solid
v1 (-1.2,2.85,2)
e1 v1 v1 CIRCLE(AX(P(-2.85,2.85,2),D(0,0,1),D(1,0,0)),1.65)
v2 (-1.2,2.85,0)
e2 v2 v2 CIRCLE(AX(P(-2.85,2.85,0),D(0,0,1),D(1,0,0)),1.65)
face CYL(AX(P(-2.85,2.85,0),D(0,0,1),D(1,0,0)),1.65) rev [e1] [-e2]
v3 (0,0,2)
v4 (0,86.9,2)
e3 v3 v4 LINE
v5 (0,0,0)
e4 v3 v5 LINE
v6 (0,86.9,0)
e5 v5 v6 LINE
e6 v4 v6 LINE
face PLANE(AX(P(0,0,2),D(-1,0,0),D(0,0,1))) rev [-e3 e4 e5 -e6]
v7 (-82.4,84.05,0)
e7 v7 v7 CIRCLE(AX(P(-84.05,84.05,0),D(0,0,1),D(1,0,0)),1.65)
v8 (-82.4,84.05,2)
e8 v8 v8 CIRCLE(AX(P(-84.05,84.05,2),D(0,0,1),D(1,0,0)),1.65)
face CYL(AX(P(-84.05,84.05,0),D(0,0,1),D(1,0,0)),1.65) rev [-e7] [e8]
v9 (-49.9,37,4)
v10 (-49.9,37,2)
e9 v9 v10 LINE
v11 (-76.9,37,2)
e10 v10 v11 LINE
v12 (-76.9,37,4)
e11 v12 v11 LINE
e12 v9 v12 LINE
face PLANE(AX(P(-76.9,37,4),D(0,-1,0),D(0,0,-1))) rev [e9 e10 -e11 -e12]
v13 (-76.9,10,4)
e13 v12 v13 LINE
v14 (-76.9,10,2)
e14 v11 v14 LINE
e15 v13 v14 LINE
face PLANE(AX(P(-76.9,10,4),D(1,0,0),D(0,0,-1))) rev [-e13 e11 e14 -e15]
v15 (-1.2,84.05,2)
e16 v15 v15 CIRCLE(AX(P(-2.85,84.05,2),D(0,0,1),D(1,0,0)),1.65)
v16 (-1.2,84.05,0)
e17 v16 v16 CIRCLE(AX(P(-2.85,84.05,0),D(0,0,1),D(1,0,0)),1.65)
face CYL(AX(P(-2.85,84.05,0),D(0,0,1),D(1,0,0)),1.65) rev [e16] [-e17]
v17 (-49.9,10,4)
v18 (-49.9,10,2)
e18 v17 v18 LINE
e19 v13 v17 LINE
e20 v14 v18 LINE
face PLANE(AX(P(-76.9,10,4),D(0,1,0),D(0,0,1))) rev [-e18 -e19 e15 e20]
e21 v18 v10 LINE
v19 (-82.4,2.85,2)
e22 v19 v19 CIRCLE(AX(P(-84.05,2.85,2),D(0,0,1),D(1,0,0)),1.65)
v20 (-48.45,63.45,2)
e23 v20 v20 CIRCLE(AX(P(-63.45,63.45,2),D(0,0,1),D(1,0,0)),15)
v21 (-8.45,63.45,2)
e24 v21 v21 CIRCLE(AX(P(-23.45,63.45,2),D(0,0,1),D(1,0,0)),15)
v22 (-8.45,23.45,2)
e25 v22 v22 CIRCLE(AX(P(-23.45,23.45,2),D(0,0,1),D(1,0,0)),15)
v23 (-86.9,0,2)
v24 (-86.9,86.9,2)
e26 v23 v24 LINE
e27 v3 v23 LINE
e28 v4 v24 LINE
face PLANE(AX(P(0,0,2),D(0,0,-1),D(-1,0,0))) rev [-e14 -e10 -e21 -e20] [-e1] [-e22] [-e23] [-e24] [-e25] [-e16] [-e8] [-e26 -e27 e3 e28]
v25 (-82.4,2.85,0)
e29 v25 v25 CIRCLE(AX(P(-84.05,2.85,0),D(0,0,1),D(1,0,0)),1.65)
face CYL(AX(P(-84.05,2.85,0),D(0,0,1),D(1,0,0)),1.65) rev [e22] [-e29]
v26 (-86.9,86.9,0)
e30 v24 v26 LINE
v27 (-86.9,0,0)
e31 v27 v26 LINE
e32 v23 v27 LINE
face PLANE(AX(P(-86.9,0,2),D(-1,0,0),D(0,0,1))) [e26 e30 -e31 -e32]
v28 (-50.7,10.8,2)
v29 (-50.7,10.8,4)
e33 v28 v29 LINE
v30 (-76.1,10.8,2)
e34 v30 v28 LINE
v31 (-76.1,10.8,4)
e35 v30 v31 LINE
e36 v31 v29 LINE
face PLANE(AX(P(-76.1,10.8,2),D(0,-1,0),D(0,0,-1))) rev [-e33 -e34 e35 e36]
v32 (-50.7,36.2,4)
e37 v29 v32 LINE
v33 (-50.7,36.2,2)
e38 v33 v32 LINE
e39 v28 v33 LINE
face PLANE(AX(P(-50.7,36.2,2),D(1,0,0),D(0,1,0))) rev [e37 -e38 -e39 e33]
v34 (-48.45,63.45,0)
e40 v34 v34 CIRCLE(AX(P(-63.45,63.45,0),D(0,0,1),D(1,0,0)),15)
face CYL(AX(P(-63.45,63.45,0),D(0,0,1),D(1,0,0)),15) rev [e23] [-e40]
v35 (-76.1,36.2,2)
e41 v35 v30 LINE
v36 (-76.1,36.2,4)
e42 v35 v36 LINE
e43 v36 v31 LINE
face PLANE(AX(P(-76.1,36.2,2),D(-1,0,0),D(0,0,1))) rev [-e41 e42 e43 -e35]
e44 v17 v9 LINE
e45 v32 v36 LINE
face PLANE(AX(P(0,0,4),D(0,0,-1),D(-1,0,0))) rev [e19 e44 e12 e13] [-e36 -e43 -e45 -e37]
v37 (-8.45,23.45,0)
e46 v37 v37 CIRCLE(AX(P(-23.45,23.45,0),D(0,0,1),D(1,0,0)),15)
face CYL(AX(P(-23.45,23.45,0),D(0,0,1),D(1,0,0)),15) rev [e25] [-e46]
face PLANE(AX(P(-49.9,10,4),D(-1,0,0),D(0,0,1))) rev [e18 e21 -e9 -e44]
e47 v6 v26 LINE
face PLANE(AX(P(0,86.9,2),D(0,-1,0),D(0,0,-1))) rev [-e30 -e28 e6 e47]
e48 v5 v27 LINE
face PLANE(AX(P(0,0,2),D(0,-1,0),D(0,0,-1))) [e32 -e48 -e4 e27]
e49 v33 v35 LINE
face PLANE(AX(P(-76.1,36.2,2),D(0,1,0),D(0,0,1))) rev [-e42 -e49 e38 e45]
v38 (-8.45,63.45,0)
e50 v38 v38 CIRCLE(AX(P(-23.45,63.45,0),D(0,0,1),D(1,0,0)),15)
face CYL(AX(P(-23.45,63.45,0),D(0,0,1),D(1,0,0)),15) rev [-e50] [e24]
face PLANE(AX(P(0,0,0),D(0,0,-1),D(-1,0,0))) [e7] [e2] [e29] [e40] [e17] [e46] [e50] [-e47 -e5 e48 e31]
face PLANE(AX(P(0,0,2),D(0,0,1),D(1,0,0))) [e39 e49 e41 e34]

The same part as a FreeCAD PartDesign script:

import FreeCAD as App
import Part
import Sketcher
Q = App.Units.Quantity

doc = App.newDocument("Part")
body = doc.addObject("PartDesign::Body", "Body")

# Sketch on XY plane
sketch1 = doc.addObject("Sketcher::SketchObject", "Sketch")
body.addObject(sketch1)
sketch1.AttachmentSupport = (doc.XY_Plane, [""])
sketch1.MapMode = "FlatFace"
sketch1.addGeometry([
    Part.LineSegment(App.Vector(-87, 0, 0), App.Vector(0, 0, 0)),
    Part.LineSegment(App.Vector(0, 0, 0), App.Vector(0, 87, 0)),
    Part.LineSegment(App.Vector(0, 87, 0), App.Vector(-87, 87, 0)),
    Part.LineSegment(App.Vector(-87, 87, 0), App.Vector(-87, 0, 0)),
], False)
sketch1.addConstraint([
    Sketcher.Constraint("Coincident", 0, 2, 1, 1),
    Sketcher.Constraint("Coincident", 1, 2, 2, 1),
    Sketcher.Constraint("Coincident", 2, 2, 3, 1),
    Sketcher.Constraint("Coincident", 3, 2, 0, 1),
    Sketcher.Constraint("Horizontal", 0),
    Sketcher.Constraint("Vertical", 1),
    Sketcher.Constraint("Horizontal", 2),
    Sketcher.Constraint("Vertical", 3),
    Sketcher.Constraint("Coincident", 0, 2, -1, 1),
    Sketcher.Constraint("Equal", 2, 1),
    Sketcher.Constraint("DistanceX", 0, 1, 0, 2, Q("86.9 mm")),
])
pad1 = doc.addObject("PartDesign::Pad", "Pad")
body.addObject(pad1)
pad1.Profile = sketch1
pad1.Length = 2

# Sketch on XY plane
sketch2 = doc.addObject("Sketcher::SketchObject", "Sketch001")
body.addObject(sketch2)
sketch2.AttachmentSupport = (doc.XY_Plane, [""])
sketch2.MapMode = "FlatFace"
sketch2.AttachmentOffset = App.Placement(App.Vector(0, 0, 2), App.Rotation())
sketch2.addGeometry([
    Part.Circle(App.Vector(-84, 2.9, 0), App.Vector(0, 0, 1), 1.6),
    Part.Circle(App.Vector(-2.9, 2.9, 0), App.Vector(0, 0, 1), 1.6),
    Part.Circle(App.Vector(-2.9, 84, 0), App.Vector(0, 0, 1), 1.6),
    Part.Circle(App.Vector(-84, 84, 0), App.Vector(0, 0, 1), 1.6),
], False)
sketch2.addConstraint([
    Sketcher.Constraint("Equal", 0, 1),
    Sketcher.Constraint("Equal", 1, 2),
    Sketcher.Constraint("Equal", 2, 3),
    Sketcher.Constraint("Horizontal", 0, 3, 1, 3),
    Sketcher.Constraint("Horizontal", 2, 3, 3, 3),
    Sketcher.Constraint("Vertical", 1, 3, 2, 3),
    Sketcher.Constraint("Vertical", 0, 3, 3, 3),
    Sketcher.Constraint("Diameter", 0, Q("3.3 mm")),
    Sketcher.Constraint("DistanceX", 0, 3, 1, 3, Q("81.2 mm")),
    Sketcher.Constraint("DistanceY", 1, 3, 2, 3, Q("81.2 mm")),
    Sketcher.Constraint("DistanceX", 0, 3, -1, 1, Q("84.05 mm")),
    Sketcher.Constraint("DistanceY", -1, 1, 0, 3, Q("2.85 mm")),
])
pocket1 = doc.addObject("PartDesign::Pocket", "Pocket")
body.addObject(pocket1)
pocket1.Profile = sketch2
pocket1.Type = "ThroughAll"

# Sketch on XY plane
sketch3 = doc.addObject("Sketcher::SketchObject", "Sketch002")
body.addObject(sketch3)
sketch3.AttachmentSupport = (doc.XY_Plane, [""])
sketch3.MapMode = "FlatFace"
sketch3.AttachmentOffset = App.Placement(App.Vector(0, 0, 2), App.Rotation())
sketch3.addGeometry([
    Part.LineSegment(App.Vector(-77, 37, 0), App.Vector(-77, 10, 0)),
    Part.LineSegment(App.Vector(-77, 10, 0), App.Vector(-50, 10, 0)),
    Part.LineSegment(App.Vector(-50, 10, 0), App.Vector(-50, 37, 0)),
    Part.LineSegment(App.Vector(-50, 37, 0), App.Vector(-77, 37, 0)),
], False)
sketch3.addConstraint([
    Sketcher.Constraint("Coincident", 0, 2, 1, 1),
    Sketcher.Constraint("Coincident", 1, 2, 2, 1),
    Sketcher.Constraint("Coincident", 2, 2, 3, 1),
    Sketcher.Constraint("Coincident", 3, 2, 0, 1),
    Sketcher.Constraint("Vertical", 0),
    Sketcher.Constraint("Horizontal", 1),
    Sketcher.Constraint("Vertical", 2),
    Sketcher.Constraint("Horizontal", 3),
    Sketcher.Constraint("Equal", 3, 0),
    Sketcher.Constraint("DistanceX", 1, 1, 1, 2, Q("27 mm")),
    Sketcher.Constraint("DistanceY", -1, 1, 0, 2, Q("10 mm")),
    Sketcher.Constraint("DistanceX", 0, 2, -1, 1, Q("76.9 mm")),
])
pad2 = doc.addObject("PartDesign::Pad", "Pad001")
body.addObject(pad2)
pad2.Profile = sketch3
pad2.Length = 2

# Sketch on XY plane
sketch4 = doc.addObject("Sketcher::SketchObject", "Sketch003")
body.addObject(sketch4)
sketch4.AttachmentSupport = (doc.XY_Plane, [""])
sketch4.MapMode = "FlatFace"
sketch4.AttachmentOffset = App.Placement(App.Vector(0, 0, 4), App.Rotation())
sketch4.addGeometry([
    Part.LineSegment(App.Vector(-76, 36, 0), App.Vector(-76, 11, 0)),
    Part.LineSegment(App.Vector(-76, 11, 0), App.Vector(-51, 11, 0)),
    Part.LineSegment(App.Vector(-51, 11, 0), App.Vector(-51, 36, 0)),
    Part.LineSegment(App.Vector(-51, 36, 0), App.Vector(-76, 36, 0)),
], False)
sketch4.addConstraint([
    Sketcher.Constraint("Coincident", 0, 2, 1, 1),
    Sketcher.Constraint("Coincident", 1, 2, 2, 1),
    Sketcher.Constraint("Coincident", 2, 2, 3, 1),
    Sketcher.Constraint("Coincident", 3, 2, 0, 1),
    Sketcher.Constraint("Vertical", 0),
    Sketcher.Constraint("Horizontal", 1),
    Sketcher.Constraint("Vertical", 2),
    Sketcher.Constraint("Horizontal", 3),
    Sketcher.Constraint("Equal", 3, 0),
    Sketcher.Constraint("DistanceX", 1, 1, 1, 2, Q("25.4 mm")),
    Sketcher.Constraint("DistanceX", 0, 2, -1, 1, Q("76.1 mm")),
    Sketcher.Constraint("DistanceY", -1, 1, 0, 2, Q("10.8 mm")),
])
pocket2 = doc.addObject("PartDesign::Pocket", "Pocket001")
body.addObject(pocket2)
pocket2.Profile = sketch4
pocket2.Length = 2

# Sketch on XY plane
sketch5 = doc.addObject("Sketcher::SketchObject", "Sketch004")
body.addObject(sketch5)
sketch5.AttachmentSupport = (doc.XY_Plane, [""])
sketch5.MapMode = "FlatFace"
sketch5.AttachmentOffset = App.Placement(App.Vector(0, 0, 2), App.Rotation())
sketch5.addGeometry([
    Part.Circle(App.Vector(-63, 63, 0), App.Vector(0, 0, 1), 15),
    Part.Circle(App.Vector(-23, 63, 0), App.Vector(0, 0, 1), 15),
    Part.Circle(App.Vector(-23, 23, 0), App.Vector(0, 0, 1), 15),
], False)
sketch5.addConstraint([
    Sketcher.Constraint("Equal", 0, 1),
    Sketcher.Constraint("Equal", 1, 2),
    Sketcher.Constraint("Horizontal", 0, 3, 1, 3),
    Sketcher.Constraint("Vertical", 1, 3, 2, 3),
    Sketcher.Constraint("Diameter", 0, Q("30 mm")),
    Sketcher.Constraint("DistanceX", 0, 3, 1, 3, Q("40 mm")),
    Sketcher.Constraint("DistanceY", 2, 3, 1, 3, Q("40 mm")),
    Sketcher.Constraint("DistanceX", 0, 3, -1, 1, Q("63.45 mm")),
    Sketcher.Constraint("DistanceY", -1, 1, 0, 3, Q("63.45 mm")),
])
pocket3 = doc.addObject("PartDesign::Pocket", "Pocket002")
body.addObject(pocket3)
pocket3.Profile = sketch5
pocket3.Length = 2

doc.recompute()
